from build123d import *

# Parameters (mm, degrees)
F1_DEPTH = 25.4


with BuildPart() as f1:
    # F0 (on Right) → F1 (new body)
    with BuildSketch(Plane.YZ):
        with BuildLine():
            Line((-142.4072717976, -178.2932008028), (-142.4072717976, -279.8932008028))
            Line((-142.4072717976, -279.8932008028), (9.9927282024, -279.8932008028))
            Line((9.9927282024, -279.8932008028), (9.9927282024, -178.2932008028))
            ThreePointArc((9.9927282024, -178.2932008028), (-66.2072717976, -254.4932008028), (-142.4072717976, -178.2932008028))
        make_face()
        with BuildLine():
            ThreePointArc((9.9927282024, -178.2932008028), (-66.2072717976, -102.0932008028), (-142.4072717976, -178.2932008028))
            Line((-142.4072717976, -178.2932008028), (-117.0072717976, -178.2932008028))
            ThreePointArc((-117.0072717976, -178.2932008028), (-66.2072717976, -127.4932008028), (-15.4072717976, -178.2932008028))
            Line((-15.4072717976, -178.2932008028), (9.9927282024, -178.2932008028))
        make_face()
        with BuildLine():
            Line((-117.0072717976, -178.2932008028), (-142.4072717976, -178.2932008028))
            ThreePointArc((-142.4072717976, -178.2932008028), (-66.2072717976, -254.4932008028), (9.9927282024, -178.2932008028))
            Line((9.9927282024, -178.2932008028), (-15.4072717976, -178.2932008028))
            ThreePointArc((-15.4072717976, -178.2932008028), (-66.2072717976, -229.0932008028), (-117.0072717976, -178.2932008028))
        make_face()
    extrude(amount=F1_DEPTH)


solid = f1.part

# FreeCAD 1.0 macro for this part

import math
import FreeCAD as App
import Part
import Sketcher

V = App.Vector
Q = App.Units.Quantity

doc = App.newDocument("Part")
body = doc.addObject("PartDesign::Body", "Body")

# Sketch on YZ plane
sketch1 = body.newObject("Sketcher::SketchObject", "Sketch")
sketch1.AttachmentSupport = (doc.getObject("YZ_Plane"), [""])
sketch1.MapMode = "FlatFace"
sketch1.addGeometry([
    Part.LineSegment(V(-142, -178, 0), V(-142, -280, 0)),  # 0
    Part.LineSegment(V(-142, -280, 0), V(10, -280, 0)),  # 1
    Part.LineSegment(V(10, -280, 0), V(10, -178, 0)),  # 2
    Part.ArcOfCircle(Part.Circle(V(-66, -178, 0), V(0, 0, 1), 76), math.radians(0), math.radians(180)),  # 3
    Part.Circle(V(-66, -178, 0), V(0, 0, 1), 51),  # 4
], False)
sketch1.addConstraint([
    Sketcher.Constraint("Coincident", 0, 2, 1, 1),
    Sketcher.Constraint("Coincident", 1, 2, 2, 1),
    Sketcher.Constraint("Tangent", 2, 2, 3, 1),
    Sketcher.Constraint("Tangent", 3, 2, 0, 1),
    Sketcher.Constraint("Vertical", 0),
    Sketcher.Constraint("Horizontal", 1),
    Sketcher.Constraint("Vertical", 2),
    Sketcher.Constraint("Coincident", 4, 3, 3, 3),
    Sketcher.Constraint("Diameter", 4, Q("4 in")),
    Sketcher.Constraint("Radius", 3, Q("3 in")),
    Sketcher.Constraint("DistanceY", 0, 2, 0, 1, Q("4 in")),
    Sketcher.Constraint("DistanceY", 3, 3, -1, 1, Q("178.293201 mm")),
    Sketcher.Constraint("DistanceX", 3, 3, -1, 1, Q("66.207272 mm")),
])
pad1 = body.newObject("PartDesign::Pad", "Pad")
pad1.Profile = sketch1
pad1.Length = Q("1 in")

doc.recompute()
